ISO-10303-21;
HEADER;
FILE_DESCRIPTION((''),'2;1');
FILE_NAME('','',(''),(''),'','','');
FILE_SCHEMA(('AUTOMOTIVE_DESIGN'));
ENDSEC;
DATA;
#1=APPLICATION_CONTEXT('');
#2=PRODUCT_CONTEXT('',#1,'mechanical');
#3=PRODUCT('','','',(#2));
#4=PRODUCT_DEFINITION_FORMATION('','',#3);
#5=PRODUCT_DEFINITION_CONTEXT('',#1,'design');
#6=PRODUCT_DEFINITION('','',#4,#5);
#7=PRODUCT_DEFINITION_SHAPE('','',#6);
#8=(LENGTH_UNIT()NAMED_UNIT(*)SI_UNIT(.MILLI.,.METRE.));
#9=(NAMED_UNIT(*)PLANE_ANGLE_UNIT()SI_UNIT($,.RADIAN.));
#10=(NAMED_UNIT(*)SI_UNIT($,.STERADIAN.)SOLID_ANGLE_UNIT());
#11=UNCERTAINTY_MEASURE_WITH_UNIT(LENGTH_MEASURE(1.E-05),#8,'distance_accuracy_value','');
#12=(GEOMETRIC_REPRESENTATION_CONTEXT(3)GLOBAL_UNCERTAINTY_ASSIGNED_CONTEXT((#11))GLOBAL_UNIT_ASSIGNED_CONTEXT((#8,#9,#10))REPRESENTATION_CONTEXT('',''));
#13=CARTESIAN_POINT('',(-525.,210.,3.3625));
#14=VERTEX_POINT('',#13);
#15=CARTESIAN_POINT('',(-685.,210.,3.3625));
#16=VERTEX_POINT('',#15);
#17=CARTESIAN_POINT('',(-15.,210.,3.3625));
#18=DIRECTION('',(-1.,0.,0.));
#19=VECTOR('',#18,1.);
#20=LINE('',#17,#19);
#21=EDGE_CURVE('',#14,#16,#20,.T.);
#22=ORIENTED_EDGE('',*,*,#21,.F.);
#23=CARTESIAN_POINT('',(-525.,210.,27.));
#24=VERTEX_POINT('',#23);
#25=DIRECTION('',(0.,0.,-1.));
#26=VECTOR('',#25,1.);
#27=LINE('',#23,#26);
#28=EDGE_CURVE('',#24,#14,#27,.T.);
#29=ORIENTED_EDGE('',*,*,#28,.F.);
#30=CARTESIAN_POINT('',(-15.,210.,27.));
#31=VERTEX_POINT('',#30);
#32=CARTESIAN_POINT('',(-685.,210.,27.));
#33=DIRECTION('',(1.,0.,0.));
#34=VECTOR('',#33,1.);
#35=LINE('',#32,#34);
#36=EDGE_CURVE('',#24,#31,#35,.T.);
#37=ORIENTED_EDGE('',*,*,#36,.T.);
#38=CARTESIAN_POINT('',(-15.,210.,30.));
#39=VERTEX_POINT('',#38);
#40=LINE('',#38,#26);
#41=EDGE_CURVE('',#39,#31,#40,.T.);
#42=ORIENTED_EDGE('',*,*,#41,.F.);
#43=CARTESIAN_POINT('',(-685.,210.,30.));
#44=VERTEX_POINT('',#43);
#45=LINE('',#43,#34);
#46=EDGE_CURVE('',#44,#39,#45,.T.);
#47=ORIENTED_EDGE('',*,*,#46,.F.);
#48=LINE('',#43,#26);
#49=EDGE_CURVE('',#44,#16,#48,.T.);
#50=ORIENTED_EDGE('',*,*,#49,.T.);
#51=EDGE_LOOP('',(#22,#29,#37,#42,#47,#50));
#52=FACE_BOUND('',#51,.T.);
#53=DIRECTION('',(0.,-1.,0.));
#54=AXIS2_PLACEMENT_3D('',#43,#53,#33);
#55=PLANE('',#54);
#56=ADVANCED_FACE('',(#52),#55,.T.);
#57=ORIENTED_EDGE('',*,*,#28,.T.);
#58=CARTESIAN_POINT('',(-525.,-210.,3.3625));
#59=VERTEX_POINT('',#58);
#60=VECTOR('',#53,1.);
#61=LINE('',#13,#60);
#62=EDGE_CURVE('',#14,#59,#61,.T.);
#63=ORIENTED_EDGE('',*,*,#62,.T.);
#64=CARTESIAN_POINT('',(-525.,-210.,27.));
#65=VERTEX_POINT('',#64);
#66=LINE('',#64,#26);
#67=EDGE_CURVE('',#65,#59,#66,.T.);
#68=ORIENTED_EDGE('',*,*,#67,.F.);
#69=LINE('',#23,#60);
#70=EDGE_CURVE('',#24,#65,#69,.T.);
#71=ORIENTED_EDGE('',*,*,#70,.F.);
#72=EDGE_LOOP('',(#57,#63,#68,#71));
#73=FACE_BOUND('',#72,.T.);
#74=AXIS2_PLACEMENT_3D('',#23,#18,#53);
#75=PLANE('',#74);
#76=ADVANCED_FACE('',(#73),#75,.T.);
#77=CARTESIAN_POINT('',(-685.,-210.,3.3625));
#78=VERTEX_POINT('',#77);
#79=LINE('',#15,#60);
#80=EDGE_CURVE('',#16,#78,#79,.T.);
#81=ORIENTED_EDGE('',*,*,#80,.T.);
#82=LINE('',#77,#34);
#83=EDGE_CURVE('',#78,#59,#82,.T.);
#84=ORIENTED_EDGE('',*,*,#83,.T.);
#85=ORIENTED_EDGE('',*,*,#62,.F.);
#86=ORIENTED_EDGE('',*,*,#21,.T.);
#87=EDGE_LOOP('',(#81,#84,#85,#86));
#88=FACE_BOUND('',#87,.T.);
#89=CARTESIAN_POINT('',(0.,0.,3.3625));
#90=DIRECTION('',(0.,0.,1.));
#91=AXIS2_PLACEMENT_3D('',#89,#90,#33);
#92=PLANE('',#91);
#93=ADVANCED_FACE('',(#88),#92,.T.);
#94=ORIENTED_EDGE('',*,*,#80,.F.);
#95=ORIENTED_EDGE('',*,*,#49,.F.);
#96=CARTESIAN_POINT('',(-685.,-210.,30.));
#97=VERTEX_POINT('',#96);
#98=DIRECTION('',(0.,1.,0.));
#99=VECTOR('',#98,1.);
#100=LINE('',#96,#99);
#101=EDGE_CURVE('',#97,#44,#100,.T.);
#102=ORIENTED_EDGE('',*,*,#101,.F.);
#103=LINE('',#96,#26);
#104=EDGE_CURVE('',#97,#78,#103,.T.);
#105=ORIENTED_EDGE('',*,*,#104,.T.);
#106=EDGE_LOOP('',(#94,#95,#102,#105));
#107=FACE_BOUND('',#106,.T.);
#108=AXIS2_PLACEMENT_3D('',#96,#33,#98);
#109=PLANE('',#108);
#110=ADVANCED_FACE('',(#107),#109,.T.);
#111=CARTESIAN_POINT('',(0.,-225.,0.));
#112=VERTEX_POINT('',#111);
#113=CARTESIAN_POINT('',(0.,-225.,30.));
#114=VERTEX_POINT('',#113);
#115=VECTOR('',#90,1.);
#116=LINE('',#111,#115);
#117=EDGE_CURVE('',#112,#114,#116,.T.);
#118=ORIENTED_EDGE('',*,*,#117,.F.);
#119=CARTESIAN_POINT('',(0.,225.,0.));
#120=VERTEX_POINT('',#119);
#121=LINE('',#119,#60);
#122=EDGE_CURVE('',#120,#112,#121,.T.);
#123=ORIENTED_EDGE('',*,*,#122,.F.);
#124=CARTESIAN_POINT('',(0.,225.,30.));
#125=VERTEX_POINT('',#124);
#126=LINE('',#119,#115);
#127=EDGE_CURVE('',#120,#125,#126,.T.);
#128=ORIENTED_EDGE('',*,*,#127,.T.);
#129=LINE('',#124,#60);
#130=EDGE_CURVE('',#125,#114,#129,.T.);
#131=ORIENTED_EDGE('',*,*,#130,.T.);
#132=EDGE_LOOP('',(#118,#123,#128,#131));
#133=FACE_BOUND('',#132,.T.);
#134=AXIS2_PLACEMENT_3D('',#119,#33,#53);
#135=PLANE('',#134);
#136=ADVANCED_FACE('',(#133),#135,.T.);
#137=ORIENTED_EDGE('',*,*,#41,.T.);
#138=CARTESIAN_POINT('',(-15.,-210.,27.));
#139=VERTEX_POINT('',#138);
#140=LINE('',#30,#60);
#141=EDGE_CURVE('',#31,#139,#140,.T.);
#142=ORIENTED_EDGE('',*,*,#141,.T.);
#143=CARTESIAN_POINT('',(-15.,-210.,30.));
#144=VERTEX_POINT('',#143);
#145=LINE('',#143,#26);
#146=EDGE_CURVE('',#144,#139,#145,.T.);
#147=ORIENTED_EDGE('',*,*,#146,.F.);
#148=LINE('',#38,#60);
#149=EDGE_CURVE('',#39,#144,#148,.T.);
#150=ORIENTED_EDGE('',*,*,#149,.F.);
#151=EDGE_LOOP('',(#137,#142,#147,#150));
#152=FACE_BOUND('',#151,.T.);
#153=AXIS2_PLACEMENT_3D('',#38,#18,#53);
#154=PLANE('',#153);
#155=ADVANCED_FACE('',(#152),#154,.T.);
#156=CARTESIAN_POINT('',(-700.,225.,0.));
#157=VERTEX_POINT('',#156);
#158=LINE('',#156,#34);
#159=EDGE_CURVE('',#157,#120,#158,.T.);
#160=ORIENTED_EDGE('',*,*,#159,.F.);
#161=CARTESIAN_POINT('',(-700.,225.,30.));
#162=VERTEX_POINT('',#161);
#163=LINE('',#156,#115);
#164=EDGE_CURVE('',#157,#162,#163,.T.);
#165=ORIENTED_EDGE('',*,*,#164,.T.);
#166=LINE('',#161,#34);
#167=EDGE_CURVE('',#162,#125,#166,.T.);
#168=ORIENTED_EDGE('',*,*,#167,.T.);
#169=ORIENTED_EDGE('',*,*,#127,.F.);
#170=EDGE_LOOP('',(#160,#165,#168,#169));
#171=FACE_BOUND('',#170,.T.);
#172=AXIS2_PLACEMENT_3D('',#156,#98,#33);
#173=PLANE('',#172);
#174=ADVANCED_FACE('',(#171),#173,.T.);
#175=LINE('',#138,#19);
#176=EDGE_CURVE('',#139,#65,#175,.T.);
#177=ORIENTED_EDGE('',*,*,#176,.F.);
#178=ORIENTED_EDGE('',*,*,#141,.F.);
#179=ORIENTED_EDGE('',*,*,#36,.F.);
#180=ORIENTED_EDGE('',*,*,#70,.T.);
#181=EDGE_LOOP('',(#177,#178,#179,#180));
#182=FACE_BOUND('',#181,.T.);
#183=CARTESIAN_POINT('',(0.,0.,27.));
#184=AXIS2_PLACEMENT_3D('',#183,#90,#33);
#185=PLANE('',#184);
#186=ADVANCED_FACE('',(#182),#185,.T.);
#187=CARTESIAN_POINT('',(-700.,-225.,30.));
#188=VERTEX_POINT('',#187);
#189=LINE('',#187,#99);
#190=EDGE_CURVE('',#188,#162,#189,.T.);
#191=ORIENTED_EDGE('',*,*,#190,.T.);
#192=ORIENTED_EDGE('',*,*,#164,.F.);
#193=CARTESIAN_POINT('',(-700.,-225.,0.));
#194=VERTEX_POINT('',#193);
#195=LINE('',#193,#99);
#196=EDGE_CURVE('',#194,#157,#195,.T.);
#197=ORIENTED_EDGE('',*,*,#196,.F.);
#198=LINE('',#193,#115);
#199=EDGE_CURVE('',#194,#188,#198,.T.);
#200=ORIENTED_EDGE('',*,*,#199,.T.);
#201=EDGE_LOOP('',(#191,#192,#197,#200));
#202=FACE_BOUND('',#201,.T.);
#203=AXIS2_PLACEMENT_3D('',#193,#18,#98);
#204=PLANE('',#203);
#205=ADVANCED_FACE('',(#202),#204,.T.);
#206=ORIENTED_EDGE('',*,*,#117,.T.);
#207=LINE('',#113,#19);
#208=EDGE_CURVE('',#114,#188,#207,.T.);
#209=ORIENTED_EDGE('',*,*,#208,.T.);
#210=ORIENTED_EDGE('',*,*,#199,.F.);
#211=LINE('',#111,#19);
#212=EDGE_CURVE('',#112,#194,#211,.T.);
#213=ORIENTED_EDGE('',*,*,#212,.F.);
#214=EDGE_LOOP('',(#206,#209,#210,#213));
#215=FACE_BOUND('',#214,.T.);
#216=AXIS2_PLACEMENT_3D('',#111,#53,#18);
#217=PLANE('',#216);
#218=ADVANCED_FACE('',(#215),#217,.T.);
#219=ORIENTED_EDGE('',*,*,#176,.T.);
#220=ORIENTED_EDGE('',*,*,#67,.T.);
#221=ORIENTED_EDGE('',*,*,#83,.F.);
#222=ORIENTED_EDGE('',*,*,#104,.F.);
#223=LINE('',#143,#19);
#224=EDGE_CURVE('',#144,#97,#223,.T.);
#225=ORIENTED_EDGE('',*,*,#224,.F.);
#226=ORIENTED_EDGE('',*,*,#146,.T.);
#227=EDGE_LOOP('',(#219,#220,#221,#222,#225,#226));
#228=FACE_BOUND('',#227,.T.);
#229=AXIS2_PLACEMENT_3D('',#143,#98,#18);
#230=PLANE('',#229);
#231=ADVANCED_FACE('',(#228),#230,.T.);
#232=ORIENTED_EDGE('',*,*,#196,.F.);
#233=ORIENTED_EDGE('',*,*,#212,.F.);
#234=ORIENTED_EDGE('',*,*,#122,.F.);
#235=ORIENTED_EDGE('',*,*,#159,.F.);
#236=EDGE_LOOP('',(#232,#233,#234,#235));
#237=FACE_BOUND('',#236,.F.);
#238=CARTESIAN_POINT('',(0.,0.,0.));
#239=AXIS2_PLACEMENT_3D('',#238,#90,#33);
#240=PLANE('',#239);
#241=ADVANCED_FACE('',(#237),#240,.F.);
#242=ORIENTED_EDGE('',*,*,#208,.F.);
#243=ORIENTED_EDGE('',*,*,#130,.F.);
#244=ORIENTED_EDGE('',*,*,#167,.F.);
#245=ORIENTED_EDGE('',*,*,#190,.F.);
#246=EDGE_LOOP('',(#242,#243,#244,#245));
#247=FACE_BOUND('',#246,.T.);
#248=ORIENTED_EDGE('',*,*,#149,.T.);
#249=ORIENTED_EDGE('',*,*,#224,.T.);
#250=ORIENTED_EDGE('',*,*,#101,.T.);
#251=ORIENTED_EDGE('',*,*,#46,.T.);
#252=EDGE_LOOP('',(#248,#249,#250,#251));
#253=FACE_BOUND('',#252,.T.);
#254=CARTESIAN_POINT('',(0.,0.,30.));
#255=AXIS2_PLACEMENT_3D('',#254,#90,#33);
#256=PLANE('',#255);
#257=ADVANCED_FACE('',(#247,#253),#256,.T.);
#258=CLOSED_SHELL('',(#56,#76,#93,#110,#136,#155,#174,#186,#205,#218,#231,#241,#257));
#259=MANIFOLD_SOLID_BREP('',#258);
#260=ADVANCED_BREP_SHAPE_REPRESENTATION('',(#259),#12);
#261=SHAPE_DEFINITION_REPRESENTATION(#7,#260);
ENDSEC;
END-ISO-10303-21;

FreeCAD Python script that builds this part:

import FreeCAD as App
import Part
import Sketcher

V = App.Vector


def add_polygon(sketch, points):
    """Adds a closed chain of lines whose ends are joined by coincident constraints."""
    first, n = sketch.GeometryCount, len(points)
    for a, b in zip(points, points[1:] + points[:1]):
        sketch.addGeometry(Part.LineSegment(App.Vector(*a, 0), App.Vector(*b, 0)), False)
    for i in range(n):
        sketch.addConstraint(Sketcher.Constraint("Coincident", first + i, 2, first + (i + 1) % n, 1))

doc = App.newDocument("Part")
params = doc.addObject("Spreadsheet::Sheet", "Params")
for row, (alias, value) in enumerate([
    ("sketch1_width", "700 mm"),
    ("sketch1_height", "450 mm"),
    ("pad1_length", "30 mm"),
    ("sketch2_width", "670 mm"),
    ("sketch2_height", "420 mm"),
    ("pocket1_length", "3 mm"),
    ("sketch3_width", "160 mm"),
    ("sketch3_height", "420 mm"),
    ("pocket2_length", "23.6375 mm"),
], start=1):
    params.set(f"A{row}", alias)
    params.set(f"B{row}", "=" + value)
    params.setAlias(f"B{row}", alias)

body = doc.addObject("PartDesign::Body", "Body")

# Sketch on XY plane
sketch1 = body.newObject("Sketcher::SketchObject", "Sketch")
sketch1.AttachmentSupport = (doc.getObject("XY_Plane"), [""])
sketch1.MapMode = "FlatFace"
add_polygon(sketch1, [(0, -225), (0, 225), (-700, 225), (-700, -225)])  # lines 0-3
sketch1.addConstraint(Sketcher.Constraint("Vertical", 0))
sketch1.addConstraint(Sketcher.Constraint("Horizontal", 1))
sketch1.addConstraint(Sketcher.Constraint("Vertical", 2))
sketch1.addConstraint(Sketcher.Constraint("Horizontal", 3))
sketch1.addConstraint(Sketcher.Constraint("Symmetric", 0, 2, 3, 2, -1, 1))
sketch1.addConstraint(Sketcher.Constraint("DistanceX", 1, 2, 1, 1, 700.0))
sketch1.addConstraint(Sketcher.Constraint("DistanceY", 0, 1, 0, 2, 450.0))
sketch1.setExpression("Constraints[9]", "Params.sketch1_width")
sketch1.setExpression("Constraints[10]", "Params.sketch1_height")
pad1 = body.newObject("PartDesign::Pad", "Pad")
pad1.Profile = sketch1
pad1.setExpression("Length", "Params.pad1_length")

# Sketch on XY plane
sketch2 = body.newObject("Sketcher::SketchObject", "Sketch001")
sketch2.AttachmentSupport = (doc.getObject("XY_Plane"), [""])
sketch2.MapMode = "FlatFace"
sketch2.AttachmentOffset = App.Placement(V(0, 0, 30), App.Rotation())
add_polygon(sketch2, [(-15, -210), (-15, 210), (-685, 210), (-685, -210)])  # lines 0-3
sketch2.addConstraint(Sketcher.Constraint("Vertical", 0))
sketch2.addConstraint(Sketcher.Constraint("Horizontal", 1))
sketch2.addConstraint(Sketcher.Constraint("Vertical", 2))
sketch2.addConstraint(Sketcher.Constraint("Horizontal", 3))
sketch2.addConstraint(Sketcher.Constraint("DistanceX", 0, 2, -1, 1, 15.0))
sketch2.addConstraint(Sketcher.Constraint("DistanceX", 1, 2, 1, 1, 670.0))
sketch2.addConstraint(Sketcher.Constraint("DistanceY", 0, 1, 0, 2, 420.0))
sketch2.addConstraint(Sketcher.Constraint("DistanceY", -1, 1, 0, 2, 210.0))
sketch2.setExpression("Constraints[9]", "Params.sketch2_width")
sketch2.setExpression("Constraints[10]", "Params.sketch2_height")
pocket1 = body.newObject("PartDesign::Pocket", "Pocket")
pocket1.Profile = sketch2
pocket1.setExpression("Length", "Params.pocket1_length")

# Sketch on XY plane
sketch3 = body.newObject("Sketcher::SketchObject", "Sketch002")
sketch3.AttachmentSupport = (doc.getObject("XY_Plane"), [""])
sketch3.MapMode = "FlatFace"
sketch3.AttachmentOffset = App.Placement(V(0, 0, 27), App.Rotation())
add_polygon(sketch3, [(-525, -210), (-525, 210), (-685, 210), (-685, -210)])  # lines 0-3
sketch3.addConstraint(Sketcher.Constraint("Vertical", 0))
sketch3.addConstraint(Sketcher.Constraint("Horizontal", 1))
sketch3.addConstraint(Sketcher.Constraint("Vertical", 2))
sketch3.addConstraint(Sketcher.Constraint("Horizontal", 3))
sketch3.addConstraint(Sketcher.Constraint("DistanceX", 1, 2, 1, 1, 160.0))
sketch3.addConstraint(Sketcher.Constraint("DistanceY", 0, 1, 0, 2, 420.0))
sketch3.addConstraint(Sketcher.Constraint("DistanceX", 0, 2, -1, 1, 525.0))
sketch3.addConstraint(Sketcher.Constraint("DistanceY", -1, 1, 0, 2, 210.0))
sketch3.setExpression("Constraints[8]", "Params.sketch3_width")
sketch3.setExpression("Constraints[9]", "Params.sketch3_height")
pocket2 = body.newObject("PartDesign::Pocket", "Pocket001")
pocket2.Profile = sketch3
pocket2.setExpression("Length", "Params.pocket2_length")

doc.recompute()
